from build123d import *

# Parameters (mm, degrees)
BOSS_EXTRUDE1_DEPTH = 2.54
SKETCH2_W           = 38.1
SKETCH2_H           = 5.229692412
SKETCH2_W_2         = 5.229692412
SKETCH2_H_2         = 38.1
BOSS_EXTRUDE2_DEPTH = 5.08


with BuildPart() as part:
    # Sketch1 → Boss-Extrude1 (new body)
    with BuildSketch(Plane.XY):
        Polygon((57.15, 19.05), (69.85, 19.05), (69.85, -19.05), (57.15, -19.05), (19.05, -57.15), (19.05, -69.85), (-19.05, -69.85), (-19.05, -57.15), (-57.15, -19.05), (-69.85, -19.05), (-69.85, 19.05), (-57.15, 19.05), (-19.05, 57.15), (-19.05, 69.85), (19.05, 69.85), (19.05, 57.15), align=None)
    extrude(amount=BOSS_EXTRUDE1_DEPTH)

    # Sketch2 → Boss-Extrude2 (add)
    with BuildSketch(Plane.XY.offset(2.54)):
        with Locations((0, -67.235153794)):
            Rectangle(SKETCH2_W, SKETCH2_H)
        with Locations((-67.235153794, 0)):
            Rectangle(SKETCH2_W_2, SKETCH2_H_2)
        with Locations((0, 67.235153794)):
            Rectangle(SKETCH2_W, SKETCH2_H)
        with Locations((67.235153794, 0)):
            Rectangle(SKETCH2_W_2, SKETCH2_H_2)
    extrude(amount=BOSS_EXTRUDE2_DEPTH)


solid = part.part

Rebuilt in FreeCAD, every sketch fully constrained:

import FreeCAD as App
import Part
import Sketcher

V = App.Vector
Q = App.Units.Quantity


def add_polygon(sketch, points):
    """Adds a closed chain of lines whose ends are joined by coincident constraints."""
    first, n = sketch.GeometryCount, len(points)
    for a, b in zip(points, points[1:] + points[:1]):
        sketch.addGeometry(Part.LineSegment(App.Vector(*a, 0), App.Vector(*b, 0)), False)
    for i in range(n):
        sketch.addConstraint(Sketcher.Constraint("Coincident", first + i, 2, first + (i + 1) % n, 1))

doc = App.newDocument("Part")
params = doc.addObject("Spreadsheet::Sheet", "Params")
for row, (alias, value) in enumerate([
    ("sketch1_width", "0.5 in"),
    ("sketch1_width2", "1.5 in"),
    ("pad1_length", "0.1 in"),
    ("sketch2_width", "1.5 in"),
    ("pad2_length", "0.2 in"),
], start=1):
    params.set(f"A{row}", alias)
    params.set(f"B{row}", "=" + value)
    params.setAlias(f"B{row}", alias)

body = doc.addObject("PartDesign::Body", "Body")

sketch1 = body.newObject("Sketcher::SketchObject", "Sketch")
sketch1.AttachmentSupport = (doc.getObject("XY_Plane"), [""])
sketch1.MapMode = "FlatFace"
add_polygon(sketch1, [(70, 19), (57, 19), (19, 57), (19, 70), (-19, 70), (-19, 57), (-57, 19), (-70, 19), (-70, -19), (-57, -19), (-19, -57), (-19, -70), (19, -70), (19, -57), (57, -19), (70, -19)])
sketch1.addConstraint([
    Sketcher.Constraint("Horizontal", 0),
    Sketcher.Constraint("Vertical", 2),
    Sketcher.Constraint("Horizontal", 3),
    Sketcher.Constraint("Vertical", 4),
    Sketcher.Constraint("Horizontal", 6),
    Sketcher.Constraint("Vertical", 7),
    Sketcher.Constraint("Horizontal", 8),
    Sketcher.Constraint("Vertical", 10),
    Sketcher.Constraint("Horizontal", 11),
    Sketcher.Constraint("Vertical", 12),
    Sketcher.Constraint("Horizontal", 14),
    Sketcher.Constraint("Vertical", 15),
    Sketcher.Constraint("Symmetric", 0, 2, 8, 2, -1, 1),
    Sketcher.Constraint("Symmetric", 1, 2, 9, 2, -1, 1),
    Sketcher.Constraint("Symmetric", 3, 2, 11, 2, -1, 1),
    Sketcher.Constraint("Symmetric", 5, 2, 13, 2, -1, 1),
    Sketcher.Constraint("Symmetric", 1, 2, 4, 2, -2),
    Sketcher.Constraint("Symmetric", 0, 2, 5, 2, -2),
    Sketcher.Constraint("Perpendicular", 1, 5),
    Sketcher.Constraint("Perpendicular", 9, 13),
    Sketcher.Constraint("Equal", 0, 6),
    Sketcher.Constraint("Equal", 14, 2),
    Sketcher.Constraint("Equal", 11, 7),
    Sketcher.Constraint("DistanceX", 0, 2, 0, 1, Q("0.5 in")),
    Sketcher.Constraint("DistanceX", 3, 2, 3, 1, Q("1.5 in")),
    Sketcher.Constraint("DistanceY", 0, 2, 2, 2, Q("2 in")),
])
sketch1.setExpression("Constraints[39]", "Params.sketch1_width")
sketch1.setExpression("Constraints[40]", "Params.sketch1_width2")
pad1 = body.newObject("PartDesign::Pad", "Pad")
pad1.Profile = sketch1
pad1.setExpression("Length", "Params.pad1_length")

sketch2 = body.newObject("Sketcher::SketchObject", "Sketch001")
sketch2.AttachmentSupport = (doc.getObject("XY_Plane"), [""])
sketch2.MapMode = "FlatFace"
sketch2.AttachmentOffset = App.Placement(V(0, 0, 0.1 * 25.4), App.Rotation())
add_polygon(sketch2, [(-19, -65), (-19, -70), (19, -70), (19, -65)])
add_polygon(sketch2, [(-70, 19), (-70, -19), (-65, -19), (-65, 19)])
add_polygon(sketch2, [(-19, 70), (-19, 65), (19, 65), (19, 70)])
add_polygon(sketch2, [(65, 19), (65, -19), (70, -19), (70, 19)])
sketch2.addConstraint([
    Sketcher.Constraint("Vertical", 0),
    Sketcher.Constraint("Horizontal", 1),
    Sketcher.Constraint("Vertical", 2),
    Sketcher.Constraint("Horizontal", 3),
    Sketcher.Constraint("Vertical", 4),
    Sketcher.Constraint("Horizontal", 5),
    Sketcher.Constraint("Vertical", 6),
    Sketcher.Constraint("Horizontal", 7),
    Sketcher.Constraint("Vertical", 8),
    Sketcher.Constraint("Horizontal", 9),
    Sketcher.Constraint("Vertical", 10),
    Sketcher.Constraint("Horizontal", 11),
    Sketcher.Constraint("Vertical", 12),
    Sketcher.Constraint("Horizontal", 13),
    Sketcher.Constraint("Vertical", 14),
    Sketcher.Constraint("Horizontal", 15),
    Sketcher.Constraint("Symmetric", 2, 2, 8, 2, -1, 1),
    Sketcher.Constraint("Symmetric", 0, 2, 10, 2, -1, 1),
    Sketcher.Constraint("Symmetric", 6, 2, 12, 2, -1, 1),
    Sketcher.Constraint("Symmetric", 4, 2, 14, 2, -1, 1),
    Sketcher.Constraint("Horizontal", 5, 2, 12, 2),
    Sketcher.Constraint("Vertical", 3, 2, 8, 2),
    Sketcher.Constraint("Equal", 15, 0),
    Sketcher.Constraint("Equal", 11, 4),
    Sketcher.Constraint("DistanceX", 1, 1, 1, 2, Q("1.5 in")),
    Sketcher.Constraint("DistanceX", 4, 2, 3, 2, Q("2 in")),
    Sketcher.Constraint("DistanceY", 0, 2, 4, 2, Q("2 in")),
    Sketcher.Constraint("DistanceX", 5, 1, 5, 2, Q("5.229692 mm")),
])
sketch2.setExpression("Constraints[40]", "Params.sketch2_width")
pad2 = body.newObject("PartDesign::Pad", "Pad001")
pad2.Profile = sketch2
pad2.setExpression("Length", "Params.pad2_length")

doc.recompute()
